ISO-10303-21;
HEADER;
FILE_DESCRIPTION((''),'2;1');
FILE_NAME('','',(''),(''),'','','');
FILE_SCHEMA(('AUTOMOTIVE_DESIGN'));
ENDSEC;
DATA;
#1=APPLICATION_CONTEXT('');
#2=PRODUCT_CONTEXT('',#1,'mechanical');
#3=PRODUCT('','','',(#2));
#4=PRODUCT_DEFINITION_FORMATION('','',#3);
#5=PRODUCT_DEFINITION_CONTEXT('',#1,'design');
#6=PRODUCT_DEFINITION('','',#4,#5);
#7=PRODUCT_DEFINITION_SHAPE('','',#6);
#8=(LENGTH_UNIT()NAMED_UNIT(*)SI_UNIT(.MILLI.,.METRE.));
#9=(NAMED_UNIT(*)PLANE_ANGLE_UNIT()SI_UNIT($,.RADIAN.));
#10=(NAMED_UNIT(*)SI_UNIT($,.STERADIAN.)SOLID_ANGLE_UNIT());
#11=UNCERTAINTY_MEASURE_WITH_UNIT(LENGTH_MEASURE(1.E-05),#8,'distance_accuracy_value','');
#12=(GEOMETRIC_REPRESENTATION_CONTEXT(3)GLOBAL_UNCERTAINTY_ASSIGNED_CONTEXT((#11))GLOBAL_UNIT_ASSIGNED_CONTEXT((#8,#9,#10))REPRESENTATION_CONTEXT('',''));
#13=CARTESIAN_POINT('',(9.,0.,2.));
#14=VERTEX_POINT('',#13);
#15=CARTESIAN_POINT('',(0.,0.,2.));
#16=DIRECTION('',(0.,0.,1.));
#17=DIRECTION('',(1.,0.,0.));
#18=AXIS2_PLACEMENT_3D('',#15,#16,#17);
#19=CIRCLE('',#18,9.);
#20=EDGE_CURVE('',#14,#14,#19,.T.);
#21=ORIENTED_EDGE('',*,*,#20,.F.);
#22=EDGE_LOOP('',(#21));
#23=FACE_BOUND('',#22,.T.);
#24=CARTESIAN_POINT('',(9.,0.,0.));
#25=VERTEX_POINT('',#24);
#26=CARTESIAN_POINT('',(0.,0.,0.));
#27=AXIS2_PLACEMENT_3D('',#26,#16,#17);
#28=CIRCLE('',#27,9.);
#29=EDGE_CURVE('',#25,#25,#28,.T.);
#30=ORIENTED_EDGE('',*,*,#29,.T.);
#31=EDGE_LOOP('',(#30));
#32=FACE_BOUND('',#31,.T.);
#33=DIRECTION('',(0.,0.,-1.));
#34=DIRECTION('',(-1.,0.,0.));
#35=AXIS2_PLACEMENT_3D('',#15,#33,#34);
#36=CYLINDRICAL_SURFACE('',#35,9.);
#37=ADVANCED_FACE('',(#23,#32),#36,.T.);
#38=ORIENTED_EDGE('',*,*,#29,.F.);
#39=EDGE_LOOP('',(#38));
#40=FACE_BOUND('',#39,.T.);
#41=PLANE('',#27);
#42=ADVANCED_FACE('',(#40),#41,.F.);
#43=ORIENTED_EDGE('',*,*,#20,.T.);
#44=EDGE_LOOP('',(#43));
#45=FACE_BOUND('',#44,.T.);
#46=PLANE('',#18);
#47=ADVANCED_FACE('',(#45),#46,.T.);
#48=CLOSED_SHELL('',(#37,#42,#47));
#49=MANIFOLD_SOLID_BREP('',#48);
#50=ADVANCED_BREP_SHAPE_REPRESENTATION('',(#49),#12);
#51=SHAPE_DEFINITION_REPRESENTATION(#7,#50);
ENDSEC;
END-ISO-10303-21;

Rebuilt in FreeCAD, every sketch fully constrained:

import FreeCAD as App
import Part
import Sketcher
from FreeCAD import Vector

doc = App.newDocument("Part")
params = doc.addObject("Spreadsheet::Sheet", "Params")
for row, (alias, value) in enumerate([
    ("sketch1_diameter", "18 mm"),
    ("pad1_length", "2 mm"),
], start=1):
    params.set(f"A{row}", alias)
    params.set(f"B{row}", "=" + value)
    params.setAlias(f"B{row}", alias)

body = doc.addObject("PartDesign::Body", "Body")

# Sketch on XY plane
sketch1 = body.newObject("Sketcher::SketchObject", "Sketch")
sketch1.AttachmentSupport = (doc.getObject("XY_Plane"), [""])
sketch1.MapMode = "FlatFace"
sketch1.addGeometry(Part.Circle(Vector(0, 0, 0), Vector(0, 0, 1), 9), False)
sketch1.addConstraint([
    Sketcher.Constraint("Coincident", 0, 3, -1, 1),
    Sketcher.Constraint("Diameter", 0, 18.0),
])
sketch1.setExpression("Constraints[1]", "Params.sketch1_diameter")
pad1 = body.newObject("PartDesign::Pad", "Pad")
pad1.Profile = sketch1
pad1.setExpression("Length", "Params.pad1_length")

doc.recompute()
